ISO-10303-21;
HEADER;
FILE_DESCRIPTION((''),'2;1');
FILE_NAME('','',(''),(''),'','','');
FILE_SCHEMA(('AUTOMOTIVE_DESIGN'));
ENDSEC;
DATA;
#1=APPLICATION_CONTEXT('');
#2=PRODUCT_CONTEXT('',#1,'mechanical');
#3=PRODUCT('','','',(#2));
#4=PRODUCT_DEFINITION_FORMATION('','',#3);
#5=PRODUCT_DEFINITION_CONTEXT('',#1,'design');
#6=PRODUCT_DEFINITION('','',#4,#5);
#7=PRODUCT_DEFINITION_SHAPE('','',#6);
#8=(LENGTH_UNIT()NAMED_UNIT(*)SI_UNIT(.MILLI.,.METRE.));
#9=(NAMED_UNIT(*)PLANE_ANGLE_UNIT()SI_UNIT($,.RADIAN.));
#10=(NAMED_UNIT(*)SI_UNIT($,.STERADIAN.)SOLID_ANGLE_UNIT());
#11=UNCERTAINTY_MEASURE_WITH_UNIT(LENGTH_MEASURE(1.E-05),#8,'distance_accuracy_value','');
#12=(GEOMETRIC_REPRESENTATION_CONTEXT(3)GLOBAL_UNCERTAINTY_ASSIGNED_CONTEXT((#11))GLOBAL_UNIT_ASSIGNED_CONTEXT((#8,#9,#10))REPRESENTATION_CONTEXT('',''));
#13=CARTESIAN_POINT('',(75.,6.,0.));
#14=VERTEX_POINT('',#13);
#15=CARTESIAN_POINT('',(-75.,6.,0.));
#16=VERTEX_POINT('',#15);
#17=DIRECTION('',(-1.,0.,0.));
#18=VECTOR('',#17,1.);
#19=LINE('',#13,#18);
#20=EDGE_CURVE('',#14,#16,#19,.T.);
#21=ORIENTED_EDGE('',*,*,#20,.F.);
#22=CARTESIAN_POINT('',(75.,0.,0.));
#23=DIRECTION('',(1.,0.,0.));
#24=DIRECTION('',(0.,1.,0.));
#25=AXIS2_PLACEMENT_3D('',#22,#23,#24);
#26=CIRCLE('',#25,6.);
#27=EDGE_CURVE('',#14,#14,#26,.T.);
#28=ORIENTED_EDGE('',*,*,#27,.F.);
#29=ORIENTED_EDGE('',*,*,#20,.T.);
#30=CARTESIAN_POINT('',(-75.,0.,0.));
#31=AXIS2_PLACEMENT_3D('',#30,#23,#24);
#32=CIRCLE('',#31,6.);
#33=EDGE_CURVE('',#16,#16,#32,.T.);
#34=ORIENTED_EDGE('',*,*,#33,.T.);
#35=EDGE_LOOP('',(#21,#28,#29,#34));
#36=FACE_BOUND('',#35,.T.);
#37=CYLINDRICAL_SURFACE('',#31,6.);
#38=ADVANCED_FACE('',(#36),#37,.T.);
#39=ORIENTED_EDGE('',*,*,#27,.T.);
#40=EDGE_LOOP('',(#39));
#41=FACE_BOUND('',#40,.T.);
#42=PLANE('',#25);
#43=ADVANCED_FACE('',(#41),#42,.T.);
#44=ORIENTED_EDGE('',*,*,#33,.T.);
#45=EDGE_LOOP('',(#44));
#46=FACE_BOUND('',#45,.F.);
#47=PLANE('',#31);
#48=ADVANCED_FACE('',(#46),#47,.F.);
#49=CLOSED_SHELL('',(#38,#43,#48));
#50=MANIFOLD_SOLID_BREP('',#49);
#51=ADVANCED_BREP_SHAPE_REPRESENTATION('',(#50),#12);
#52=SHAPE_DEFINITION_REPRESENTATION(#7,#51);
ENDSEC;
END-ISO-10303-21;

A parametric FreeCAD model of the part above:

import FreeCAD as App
import Part
import Sketcher


def add_polygon(sketch, points):
    """Adds a closed chain of lines whose ends are joined by coincident constraints."""
    first, n = sketch.GeometryCount, len(points)
    for a, b in zip(points, points[1:] + points[:1]):
        sketch.addGeometry(Part.LineSegment(App.Vector(*a, 0), App.Vector(*b, 0)), False)
    for i in range(n):
        sketch.addConstraint(Sketcher.Constraint("Coincident", first + i, 2, first + (i + 1) % n, 1))

doc = App.newDocument("Part")
body = doc.addObject("PartDesign::Body", "Body")

sketch1 = body.newObject("Sketcher::SketchObject", "Sketch")
sketch1.AttachmentSupport = (doc.getObject("XY_Plane"), [""])
sketch1.MapMode = "FlatFace"
add_polygon(sketch1, [(75, 0), (75, 6), (-75, 6), (-75, 0)])
sketch1.addConstraint(Sketcher.Constraint("Vertical", 0))
sketch1.addConstraint(Sketcher.Constraint("Horizontal", 1))
sketch1.addConstraint(Sketcher.Constraint("Vertical", 2))
sketch1.addConstraint(Sketcher.Constraint("Horizontal", 3))
sketch1.addConstraint(Sketcher.Constraint("Symmetric", 2, 2, 3, 2, -1, 1))
sketch1.addConstraint(Sketcher.Constraint("DistanceX", 1, 2, 1, 1, 150.0))
sketch1.addConstraint(Sketcher.Constraint("DistanceY", 0, 1, 0, 2, 6.0))
revolution = body.newObject("PartDesign::Revolution", "Revolution")
revolution.Profile = sketch1
revolution.ReferenceAxis = (sketch1, ["H_Axis"])
revolution.Angle = 360

doc.recompute()
